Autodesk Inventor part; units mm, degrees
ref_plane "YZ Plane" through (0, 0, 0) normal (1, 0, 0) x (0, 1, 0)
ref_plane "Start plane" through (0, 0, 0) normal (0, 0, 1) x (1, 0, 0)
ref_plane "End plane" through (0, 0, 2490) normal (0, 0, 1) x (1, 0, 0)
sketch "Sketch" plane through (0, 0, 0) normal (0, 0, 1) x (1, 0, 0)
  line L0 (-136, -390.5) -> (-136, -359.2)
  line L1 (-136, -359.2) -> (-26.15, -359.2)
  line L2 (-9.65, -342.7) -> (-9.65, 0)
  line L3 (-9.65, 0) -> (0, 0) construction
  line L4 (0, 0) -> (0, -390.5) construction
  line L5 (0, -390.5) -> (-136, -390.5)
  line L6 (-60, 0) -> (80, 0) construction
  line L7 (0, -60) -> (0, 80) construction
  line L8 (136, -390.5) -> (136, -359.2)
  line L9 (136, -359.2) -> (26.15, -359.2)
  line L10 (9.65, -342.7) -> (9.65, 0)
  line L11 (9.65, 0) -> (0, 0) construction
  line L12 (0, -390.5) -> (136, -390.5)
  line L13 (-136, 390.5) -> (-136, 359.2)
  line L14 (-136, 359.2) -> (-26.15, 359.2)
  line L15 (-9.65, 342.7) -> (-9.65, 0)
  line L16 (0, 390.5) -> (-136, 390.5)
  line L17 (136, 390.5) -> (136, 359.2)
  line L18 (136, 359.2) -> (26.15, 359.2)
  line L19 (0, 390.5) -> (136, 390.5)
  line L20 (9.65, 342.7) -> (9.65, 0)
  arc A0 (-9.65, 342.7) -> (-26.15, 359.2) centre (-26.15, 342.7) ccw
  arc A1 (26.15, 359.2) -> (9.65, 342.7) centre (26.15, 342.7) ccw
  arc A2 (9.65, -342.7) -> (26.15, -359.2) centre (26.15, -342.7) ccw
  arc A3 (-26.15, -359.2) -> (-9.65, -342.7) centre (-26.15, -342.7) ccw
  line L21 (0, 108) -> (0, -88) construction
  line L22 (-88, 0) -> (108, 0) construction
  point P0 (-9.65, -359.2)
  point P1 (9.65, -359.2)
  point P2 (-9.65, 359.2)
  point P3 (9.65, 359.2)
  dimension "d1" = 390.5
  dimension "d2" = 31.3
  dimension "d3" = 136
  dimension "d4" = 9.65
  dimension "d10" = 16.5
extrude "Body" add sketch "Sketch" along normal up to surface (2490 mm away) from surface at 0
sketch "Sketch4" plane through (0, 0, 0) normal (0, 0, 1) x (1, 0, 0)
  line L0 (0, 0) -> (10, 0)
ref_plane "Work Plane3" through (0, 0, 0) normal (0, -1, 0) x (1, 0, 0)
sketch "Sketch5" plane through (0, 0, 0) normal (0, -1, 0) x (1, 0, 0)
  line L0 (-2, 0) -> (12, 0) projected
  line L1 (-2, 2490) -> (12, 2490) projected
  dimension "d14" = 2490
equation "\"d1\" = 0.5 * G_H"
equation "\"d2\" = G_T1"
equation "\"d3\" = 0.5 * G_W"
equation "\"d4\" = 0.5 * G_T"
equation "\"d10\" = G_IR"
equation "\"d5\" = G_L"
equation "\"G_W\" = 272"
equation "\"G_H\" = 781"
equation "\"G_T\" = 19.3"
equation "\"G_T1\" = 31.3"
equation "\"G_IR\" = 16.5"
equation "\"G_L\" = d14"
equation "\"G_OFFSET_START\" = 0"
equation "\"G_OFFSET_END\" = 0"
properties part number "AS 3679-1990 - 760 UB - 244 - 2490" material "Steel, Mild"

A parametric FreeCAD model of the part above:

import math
import FreeCAD as App
import Part
import Sketcher
Q = App.Units.Quantity

doc = App.newDocument("Part")
body = doc.addObject("PartDesign::Body", "Body")

# Sketch on XY plane
sketch1 = doc.addObject("Sketcher::SketchObject", "Sketch")
body.addObject(sketch1)
sketch1.AttachmentSupport = (doc.XY_Plane, [""])
sketch1.MapMode = "FlatFace"
sketch1.addGeometry([
    Part.LineSegment(App.Vector(-136, -359.2, 0), App.Vector(-136, -390.5, 0)),  # 0
    Part.LineSegment(App.Vector(-136, -390.5, 0), App.Vector(136, -390.5, 0)),  # 1
    Part.LineSegment(App.Vector(136, -390.5, 0), App.Vector(136, -359.2, 0)),  # 2
    Part.LineSegment(App.Vector(136, -359.2, 0), App.Vector(26.15, -359.2, 0)),  # 3
    Part.ArcOfCircle(Part.Circle(App.Vector(26.15, -342.7, 0), App.Vector(0, 0, 1), 16.5), math.radians(180), math.radians(270)),  # 4
    Part.LineSegment(App.Vector(9.65, -342.7, 0), App.Vector(9.65, 342.7, 0)),  # 5
    Part.ArcOfCircle(Part.Circle(App.Vector(26.15, 342.7, 0), App.Vector(0, 0, 1), 16.5), math.radians(90), math.radians(180)),  # 6
    Part.LineSegment(App.Vector(26.15, 359.2, 0), App.Vector(136, 359.2, 0)),  # 7
    Part.LineSegment(App.Vector(136, 359.2, 0), App.Vector(136, 390.5, 0)),  # 8
    Part.LineSegment(App.Vector(136, 390.5, 0), App.Vector(-136, 390.5, 0)),  # 9
    Part.LineSegment(App.Vector(-136, 390.5, 0), App.Vector(-136, 359.2, 0)),  # 10
    Part.LineSegment(App.Vector(-136, 359.2, 0), App.Vector(-26.15, 359.2, 0)),  # 11
    Part.ArcOfCircle(Part.Circle(App.Vector(-26.15, 342.7, 0), App.Vector(0, 0, 1), 16.5), math.radians(0), math.radians(90)),  # 12
    Part.LineSegment(App.Vector(-9.65, 342.7, 0), App.Vector(-9.65, -342.7, 0)),  # 13
    Part.ArcOfCircle(Part.Circle(App.Vector(-26.15, -342.7, 0), App.Vector(0, 0, 1), 16.5), math.radians(-90), math.radians(0)),  # 14
    Part.LineSegment(App.Vector(-26.15, -359.2, 0), App.Vector(-136, -359.2, 0)),  # 15
], False)
sketch1.addConstraint([
    Sketcher.Constraint("Coincident", 0, 2, 1, 1),
    Sketcher.Constraint("Coincident", 1, 2, 2, 1),
    Sketcher.Constraint("Coincident", 2, 2, 3, 1),
    Sketcher.Constraint("Tangent", 3, 2, 4, 2),
    Sketcher.Constraint("Tangent", 4, 1, 5, 1),
    Sketcher.Constraint("Tangent", 5, 2, 6, 2),
    Sketcher.Constraint("Tangent", 6, 1, 7, 1),
    Sketcher.Constraint("Coincident", 7, 2, 8, 1),
    Sketcher.Constraint("Coincident", 8, 2, 9, 1),
    Sketcher.Constraint("Coincident", 9, 2, 10, 1),
    Sketcher.Constraint("Coincident", 10, 2, 11, 1),
    Sketcher.Constraint("Tangent", 11, 2, 12, 2),
    Sketcher.Constraint("Tangent", 12, 1, 13, 1),
    Sketcher.Constraint("Tangent", 13, 2, 14, 2),
    Sketcher.Constraint("Tangent", 14, 1, 15, 1),
    Sketcher.Constraint("Coincident", 15, 2, 0, 1),
    Sketcher.Constraint("Vertical", 0),
    Sketcher.Constraint("Horizontal", 1),
    Sketcher.Constraint("Vertical", 2),
    Sketcher.Constraint("Horizontal", 3),
    Sketcher.Constraint("Vertical", 5),
    Sketcher.Constraint("Horizontal", 7),
    Sketcher.Constraint("Vertical", 8),
    Sketcher.Constraint("Horizontal", 9),
    Sketcher.Constraint("Vertical", 10),
    Sketcher.Constraint("Horizontal", 11),
    Sketcher.Constraint("Vertical", 13),
    Sketcher.Constraint("Horizontal", 15),
    Sketcher.Constraint("Equal", 4, 6),
    Sketcher.Constraint("Equal", 6, 12),
    Sketcher.Constraint("Equal", 12, 14),
    Sketcher.Constraint("Symmetric", 4, 3, 12, 3, -1, 1),
    Sketcher.Constraint("Symmetric", 0, 2, 8, 2, -1, 1),
    Sketcher.Constraint("Symmetric", 7, 2, 10, 2, -2),
    Sketcher.Constraint("Symmetric", 2, 2, 15, 2, -2),
    Sketcher.Constraint("Radius", 4, Q("16.5 mm")),
    Sketcher.Constraint("DistanceY", 0, 2, 0, 1, Q("31.3 mm")),
    Sketcher.Constraint("DistanceX", 0, 2, -1, 1, Q("136 mm")),
    Sketcher.Constraint("DistanceY", 0, 2, -1, 1, Q("390.5 mm")),
    Sketcher.Constraint("DistanceX", -1, 1, 4, 1, Q("9.65 mm")),
])
pad1 = doc.addObject("PartDesign::Pad", "Pad")
body.addObject(pad1)
pad1.Profile = sketch1
pad1.Length = 2490

doc.recompute()
